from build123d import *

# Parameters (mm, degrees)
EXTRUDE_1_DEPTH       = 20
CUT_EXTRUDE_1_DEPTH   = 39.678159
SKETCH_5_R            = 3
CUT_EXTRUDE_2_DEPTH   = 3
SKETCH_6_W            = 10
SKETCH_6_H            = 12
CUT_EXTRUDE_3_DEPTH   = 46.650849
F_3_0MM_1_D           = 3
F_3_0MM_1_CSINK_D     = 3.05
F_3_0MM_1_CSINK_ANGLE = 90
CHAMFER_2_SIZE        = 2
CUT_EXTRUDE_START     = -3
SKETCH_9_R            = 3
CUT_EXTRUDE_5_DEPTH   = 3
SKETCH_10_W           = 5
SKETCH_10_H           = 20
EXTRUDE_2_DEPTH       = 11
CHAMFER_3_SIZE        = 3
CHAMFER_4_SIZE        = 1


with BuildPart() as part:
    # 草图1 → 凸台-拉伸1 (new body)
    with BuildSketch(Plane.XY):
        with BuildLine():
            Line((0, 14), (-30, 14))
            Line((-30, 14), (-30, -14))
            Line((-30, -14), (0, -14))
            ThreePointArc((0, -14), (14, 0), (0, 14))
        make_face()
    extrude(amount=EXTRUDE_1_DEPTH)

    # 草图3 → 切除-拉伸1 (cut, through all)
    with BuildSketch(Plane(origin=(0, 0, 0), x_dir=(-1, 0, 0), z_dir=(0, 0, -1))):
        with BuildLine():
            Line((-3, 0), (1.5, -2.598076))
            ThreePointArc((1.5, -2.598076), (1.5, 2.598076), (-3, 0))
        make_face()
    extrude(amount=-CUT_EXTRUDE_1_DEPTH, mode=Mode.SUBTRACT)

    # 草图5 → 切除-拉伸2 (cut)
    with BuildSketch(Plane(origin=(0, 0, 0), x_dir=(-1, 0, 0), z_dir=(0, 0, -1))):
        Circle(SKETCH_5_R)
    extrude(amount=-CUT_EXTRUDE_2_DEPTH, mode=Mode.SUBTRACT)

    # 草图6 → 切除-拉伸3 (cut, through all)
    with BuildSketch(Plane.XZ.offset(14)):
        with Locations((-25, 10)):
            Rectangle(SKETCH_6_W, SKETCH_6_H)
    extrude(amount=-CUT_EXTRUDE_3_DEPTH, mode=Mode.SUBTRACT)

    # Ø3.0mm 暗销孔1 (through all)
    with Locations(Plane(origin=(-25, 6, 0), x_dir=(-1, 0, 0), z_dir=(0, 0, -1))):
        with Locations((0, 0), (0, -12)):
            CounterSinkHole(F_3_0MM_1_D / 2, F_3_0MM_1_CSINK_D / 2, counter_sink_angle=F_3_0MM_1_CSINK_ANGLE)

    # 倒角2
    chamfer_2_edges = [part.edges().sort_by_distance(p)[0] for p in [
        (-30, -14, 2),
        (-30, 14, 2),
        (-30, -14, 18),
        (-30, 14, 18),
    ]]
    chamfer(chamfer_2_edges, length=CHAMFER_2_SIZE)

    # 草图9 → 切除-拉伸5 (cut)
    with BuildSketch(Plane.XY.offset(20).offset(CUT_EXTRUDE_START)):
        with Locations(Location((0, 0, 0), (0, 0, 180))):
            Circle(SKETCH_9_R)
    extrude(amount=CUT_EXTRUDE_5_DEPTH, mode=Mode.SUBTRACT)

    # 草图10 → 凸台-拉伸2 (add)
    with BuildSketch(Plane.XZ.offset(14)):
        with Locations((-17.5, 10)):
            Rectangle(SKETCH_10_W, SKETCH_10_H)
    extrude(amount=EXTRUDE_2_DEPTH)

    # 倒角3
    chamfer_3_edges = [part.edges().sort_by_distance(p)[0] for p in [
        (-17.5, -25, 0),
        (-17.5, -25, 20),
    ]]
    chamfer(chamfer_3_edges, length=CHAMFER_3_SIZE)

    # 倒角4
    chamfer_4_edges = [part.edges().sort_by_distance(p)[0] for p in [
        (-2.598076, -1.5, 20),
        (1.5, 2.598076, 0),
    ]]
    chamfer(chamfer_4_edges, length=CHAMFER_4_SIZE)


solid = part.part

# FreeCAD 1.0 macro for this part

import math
import FreeCAD as App
import Part
import Sketcher

V = App.Vector
Q = App.Units.Quantity


def edges_at(feature, points):
    """Names of the edges that pass closest to the given points."""
    edges = feature.Shape.Edges
    near = lambda p: min(range(len(edges)), key=lambda i: edges[i].distToShape(Part.Vertex(*p))[0])
    return sorted({f"Edge{near(p) + 1}" for p in points})

doc = App.newDocument("Part")
body = doc.addObject("PartDesign::Body", "Body")

# Sketch on XY plane
sketch1 = doc.addObject("Sketcher::SketchObject", "Sketch")
body.addObject(sketch1)
sketch1.AttachmentSupport = (doc.XY_Plane, [""])
sketch1.MapMode = "FlatFace"
sketch1.addGeometry([
    Part.LineSegment(V(0, 14, 0), V(-30, 14, 0)),
    Part.LineSegment(V(-30, 14, 0), V(-30, -14, 0)),
    Part.LineSegment(V(-30, -14, 0), V(0, -14, 0)),
    Part.ArcOfCircle(Part.Circle(V(0, 0, 0), V(0, 0, 1), 14), math.radians(-90), math.radians(90)),
], False)
sketch1.addConstraint([
    Sketcher.Constraint("Coincident", 0, 2, 1, 1),
    Sketcher.Constraint("Coincident", 1, 2, 2, 1),
    Sketcher.Constraint("Tangent", 2, 2, 3, 1),
    Sketcher.Constraint("Tangent", 3, 2, 0, 1),
    Sketcher.Constraint("Horizontal", 0),
    Sketcher.Constraint("Vertical", 1),
    Sketcher.Constraint("Horizontal", 2),
    Sketcher.Constraint("Coincident", 3, 3, -1, 1),
    Sketcher.Constraint("Radius", 3, Q("14 mm")),
    Sketcher.Constraint("DistanceX", 0, 2, 0, 1, Q("30 mm")),
])
pad1 = doc.addObject("PartDesign::Pad", "Pad")
body.addObject(pad1)
pad1.Profile = sketch1
pad1.Length = 20

# Sketch on XY plane
sketch2 = doc.addObject("Sketcher::SketchObject", "Sketch001")
body.addObject(sketch2)
sketch2.AttachmentSupport = (doc.XY_Plane, [""])
sketch2.MapMode = "FlatFace"
sketch2.addGeometry([
    Part.LineSegment(V(3, 0, 0), V(-1.5, -2.6, 0)),
    Part.ArcOfCircle(Part.Circle(V(0, 0, 0), V(0, 0, 1), 3), math.radians(0), math.radians(240)),
], False)
sketch2.addConstraint([
    Sketcher.Constraint("Coincident", 0, 1, 1, 1),
    Sketcher.Constraint("Coincident", 1, 2, 0, 2),
    Sketcher.Constraint("Coincident", 1, 3, -1, 1),
    Sketcher.Constraint("PointOnObject", 0, 1, -1),
    Sketcher.Constraint("Radius", 1, Q("3 mm")),
    Sketcher.Constraint("Angle", 0, Q("-150.000002 deg")),
])
pocket1 = doc.addObject("PartDesign::Pocket", "Pocket")
body.addObject(pocket1)
pocket1.Profile = sketch2
pocket1.Type = "ThroughAll"
pocket1.Reversed = True

# Sketch on XY plane
sketch3 = doc.addObject("Sketcher::SketchObject", "Sketch002")
body.addObject(sketch3)
sketch3.AttachmentSupport = (doc.XY_Plane, [""])
sketch3.MapMode = "FlatFace"
sketch3.addGeometry(Part.Circle(V(0, 0, 0), V(0, 0, 1), 3), False)
sketch3.addConstraint([
    Sketcher.Constraint("Coincident", 0, 3, -1, 1),
    Sketcher.Constraint("Diameter", 0, Q("6 mm")),
])
pocket2 = doc.addObject("PartDesign::Pocket", "Pocket001")
body.addObject(pocket2)
pocket2.Profile = sketch3
pocket2.Length = 3
pocket2.Reversed = True

# Sketch on XZ plane
sketch4 = doc.addObject("Sketcher::SketchObject", "Sketch003")
body.addObject(sketch4)
sketch4.AttachmentSupport = (doc.XZ_Plane, [""])
sketch4.MapMode = "FlatFace"
sketch4.AttachmentOffset = App.Placement(V(0, 0, 14), App.Rotation())
sketch4.addGeometry([
    Part.LineSegment(V(-30, 16, 0), V(-30, 4, 0)),
    Part.LineSegment(V(-30, 4, 0), V(-20, 4, 0)),
    Part.LineSegment(V(-20, 4, 0), V(-20, 16, 0)),
    Part.LineSegment(V(-20, 16, 0), V(-30, 16, 0)),
], False)
sketch4.addConstraint([
    Sketcher.Constraint("Coincident", 0, 2, 1, 1),
    Sketcher.Constraint("Coincident", 1, 2, 2, 1),
    Sketcher.Constraint("Coincident", 2, 2, 3, 1),
    Sketcher.Constraint("Coincident", 3, 2, 0, 1),
    Sketcher.Constraint("Vertical", 0),
    Sketcher.Constraint("Horizontal", 1),
    Sketcher.Constraint("Vertical", 2),
    Sketcher.Constraint("Horizontal", 3),
    Sketcher.Constraint("DistanceX", 1, 1, 1, 2, Q("10 mm")),
    Sketcher.Constraint("DistanceY", 0, 2, 0, 1, Q("12 mm")),
    Sketcher.Constraint("DistanceX", 0, 2, -1, 1, Q("30 mm")),
    Sketcher.Constraint("DistanceY", -1, 1, 0, 2, Q("4 mm")),
])
pocket3 = doc.addObject("PartDesign::Pocket", "Pocket002")
body.addObject(pocket3)
pocket3.Profile = sketch4
pocket3.Type = "ThroughAll"

# Sketch on XY plane
sketch5 = doc.addObject("Sketcher::SketchObject", "Sketch004")
body.addObject(sketch5)
sketch5.AttachmentSupport = (doc.XY_Plane, [""])
sketch5.MapMode = "FlatFace"
sketch5.addGeometry([
    Part.Circle(V(-25, 6, 0), V(0, 0, 1), 1.5),
    Part.Circle(V(-25, -6, 0), V(0, 0, 1), 1.5),
], False)
sketch5.addConstraint([
    Sketcher.Constraint("Equal", 0, 1),
    Sketcher.Constraint("Symmetric", 0, 3, 1, 3, -1),
    Sketcher.Constraint("Diameter", 0, Q("3 mm")),
    Sketcher.Constraint("DistanceX", 0, 3, -1, 1, Q("25 mm")),
    Sketcher.Constraint("DistanceY", -1, 1, 0, 3, Q("6 mm")),
])
doc.recompute()
hole = doc.addObject("PartDesign::Hole", "Hole")
body.addObject(hole)
hole.Profile = sketch5
hole.ThreadType = "None"
hole.Diameter = 3
hole.DepthType = "ThroughAll"
hole.HoleCutType = "Countersink"
hole.HoleCutDiameter = 3.05
hole.HoleCutCountersinkAngle = 90
hole.Reversed = True
doc.recompute()

chamfer = doc.addObject("PartDesign::Chamfer", "Chamfer")
body.addObject(chamfer)
chamfer.Base = (hole, edges_at(hole, [
    (-30, -14, 2),
    (-30, 14, 2),
    (-30, -14, 18),
    (-30, 14, 18),
]))
chamfer.Size = 2

# Sketch on XY plane
sketch6 = doc.addObject("Sketcher::SketchObject", "Sketch005")
body.addObject(sketch6)
sketch6.AttachmentSupport = (doc.XY_Plane, [""])
sketch6.MapMode = "FlatFace"
sketch6.AttachmentOffset = App.Placement(V(0, 0, 17), App.Rotation())
sketch6.addGeometry(Part.Circle(V(0, 0, 0), V(0, 0, 1), 3), False)
sketch6.addConstraint([
    Sketcher.Constraint("Coincident", 0, 3, -1, 1),
    Sketcher.Constraint("Diameter", 0, Q("6 mm")),
])
pocket4 = doc.addObject("PartDesign::Pocket", "Pocket003")
body.addObject(pocket4)
pocket4.Profile = sketch6
pocket4.Length = 3
pocket4.Reversed = True

# Sketch on XZ plane
sketch7 = doc.addObject("Sketcher::SketchObject", "Sketch006")
body.addObject(sketch7)
sketch7.AttachmentSupport = (doc.XZ_Plane, [""])
sketch7.MapMode = "FlatFace"
sketch7.AttachmentOffset = App.Placement(V(0, 0, 14), App.Rotation())
sketch7.addGeometry([
    Part.LineSegment(V(-20, 20, 0), V(-20, 0, 0)),
    Part.LineSegment(V(-20, 0, 0), V(-15, 0, 0)),
    Part.LineSegment(V(-15, 0, 0), V(-15, 20, 0)),
    Part.LineSegment(V(-15, 20, 0), V(-20, 20, 0)),
], False)
sketch7.addConstraint([
    Sketcher.Constraint("Coincident", 0, 2, 1, 1),
    Sketcher.Constraint("Coincident", 1, 2, 2, 1),
    Sketcher.Constraint("Coincident", 2, 2, 3, 1),
    Sketcher.Constraint("Coincident", 3, 2, 0, 1),
    Sketcher.Constraint("Vertical", 0),
    Sketcher.Constraint("Horizontal", 1),
    Sketcher.Constraint("Vertical", 2),
    Sketcher.Constraint("Horizontal", 3),
    Sketcher.Constraint("PointOnObject", 0, 2, -1),
    Sketcher.Constraint("DistanceX", 1, 1, 1, 2, Q("5 mm")),
    Sketcher.Constraint("DistanceY", 0, 2, 0, 1, Q("20 mm")),
    Sketcher.Constraint("DistanceX", 0, 2, -1, 1, Q("20 mm")),
])
pad2 = doc.addObject("PartDesign::Pad", "Pad001")
body.addObject(pad2)
pad2.Profile = sketch7
pad2.Length = 11
doc.recompute()

chamfer2 = doc.addObject("PartDesign::Chamfer", "Chamfer001")
body.addObject(chamfer2)
chamfer2.Base = (pad2, edges_at(pad2, [(-17.5, -25, 0), (-17.5, -25, 20)]))
chamfer2.Size = 3
doc.recompute()

chamfer3 = doc.addObject("PartDesign::Chamfer", "Chamfer002")
body.addObject(chamfer3)
chamfer3.Base = (chamfer2, edges_at(chamfer2, [(-1.5, 2.598, 20), (-1.5, 2.598, 0)]))
chamfer3.Size = 1

doc.recompute()
